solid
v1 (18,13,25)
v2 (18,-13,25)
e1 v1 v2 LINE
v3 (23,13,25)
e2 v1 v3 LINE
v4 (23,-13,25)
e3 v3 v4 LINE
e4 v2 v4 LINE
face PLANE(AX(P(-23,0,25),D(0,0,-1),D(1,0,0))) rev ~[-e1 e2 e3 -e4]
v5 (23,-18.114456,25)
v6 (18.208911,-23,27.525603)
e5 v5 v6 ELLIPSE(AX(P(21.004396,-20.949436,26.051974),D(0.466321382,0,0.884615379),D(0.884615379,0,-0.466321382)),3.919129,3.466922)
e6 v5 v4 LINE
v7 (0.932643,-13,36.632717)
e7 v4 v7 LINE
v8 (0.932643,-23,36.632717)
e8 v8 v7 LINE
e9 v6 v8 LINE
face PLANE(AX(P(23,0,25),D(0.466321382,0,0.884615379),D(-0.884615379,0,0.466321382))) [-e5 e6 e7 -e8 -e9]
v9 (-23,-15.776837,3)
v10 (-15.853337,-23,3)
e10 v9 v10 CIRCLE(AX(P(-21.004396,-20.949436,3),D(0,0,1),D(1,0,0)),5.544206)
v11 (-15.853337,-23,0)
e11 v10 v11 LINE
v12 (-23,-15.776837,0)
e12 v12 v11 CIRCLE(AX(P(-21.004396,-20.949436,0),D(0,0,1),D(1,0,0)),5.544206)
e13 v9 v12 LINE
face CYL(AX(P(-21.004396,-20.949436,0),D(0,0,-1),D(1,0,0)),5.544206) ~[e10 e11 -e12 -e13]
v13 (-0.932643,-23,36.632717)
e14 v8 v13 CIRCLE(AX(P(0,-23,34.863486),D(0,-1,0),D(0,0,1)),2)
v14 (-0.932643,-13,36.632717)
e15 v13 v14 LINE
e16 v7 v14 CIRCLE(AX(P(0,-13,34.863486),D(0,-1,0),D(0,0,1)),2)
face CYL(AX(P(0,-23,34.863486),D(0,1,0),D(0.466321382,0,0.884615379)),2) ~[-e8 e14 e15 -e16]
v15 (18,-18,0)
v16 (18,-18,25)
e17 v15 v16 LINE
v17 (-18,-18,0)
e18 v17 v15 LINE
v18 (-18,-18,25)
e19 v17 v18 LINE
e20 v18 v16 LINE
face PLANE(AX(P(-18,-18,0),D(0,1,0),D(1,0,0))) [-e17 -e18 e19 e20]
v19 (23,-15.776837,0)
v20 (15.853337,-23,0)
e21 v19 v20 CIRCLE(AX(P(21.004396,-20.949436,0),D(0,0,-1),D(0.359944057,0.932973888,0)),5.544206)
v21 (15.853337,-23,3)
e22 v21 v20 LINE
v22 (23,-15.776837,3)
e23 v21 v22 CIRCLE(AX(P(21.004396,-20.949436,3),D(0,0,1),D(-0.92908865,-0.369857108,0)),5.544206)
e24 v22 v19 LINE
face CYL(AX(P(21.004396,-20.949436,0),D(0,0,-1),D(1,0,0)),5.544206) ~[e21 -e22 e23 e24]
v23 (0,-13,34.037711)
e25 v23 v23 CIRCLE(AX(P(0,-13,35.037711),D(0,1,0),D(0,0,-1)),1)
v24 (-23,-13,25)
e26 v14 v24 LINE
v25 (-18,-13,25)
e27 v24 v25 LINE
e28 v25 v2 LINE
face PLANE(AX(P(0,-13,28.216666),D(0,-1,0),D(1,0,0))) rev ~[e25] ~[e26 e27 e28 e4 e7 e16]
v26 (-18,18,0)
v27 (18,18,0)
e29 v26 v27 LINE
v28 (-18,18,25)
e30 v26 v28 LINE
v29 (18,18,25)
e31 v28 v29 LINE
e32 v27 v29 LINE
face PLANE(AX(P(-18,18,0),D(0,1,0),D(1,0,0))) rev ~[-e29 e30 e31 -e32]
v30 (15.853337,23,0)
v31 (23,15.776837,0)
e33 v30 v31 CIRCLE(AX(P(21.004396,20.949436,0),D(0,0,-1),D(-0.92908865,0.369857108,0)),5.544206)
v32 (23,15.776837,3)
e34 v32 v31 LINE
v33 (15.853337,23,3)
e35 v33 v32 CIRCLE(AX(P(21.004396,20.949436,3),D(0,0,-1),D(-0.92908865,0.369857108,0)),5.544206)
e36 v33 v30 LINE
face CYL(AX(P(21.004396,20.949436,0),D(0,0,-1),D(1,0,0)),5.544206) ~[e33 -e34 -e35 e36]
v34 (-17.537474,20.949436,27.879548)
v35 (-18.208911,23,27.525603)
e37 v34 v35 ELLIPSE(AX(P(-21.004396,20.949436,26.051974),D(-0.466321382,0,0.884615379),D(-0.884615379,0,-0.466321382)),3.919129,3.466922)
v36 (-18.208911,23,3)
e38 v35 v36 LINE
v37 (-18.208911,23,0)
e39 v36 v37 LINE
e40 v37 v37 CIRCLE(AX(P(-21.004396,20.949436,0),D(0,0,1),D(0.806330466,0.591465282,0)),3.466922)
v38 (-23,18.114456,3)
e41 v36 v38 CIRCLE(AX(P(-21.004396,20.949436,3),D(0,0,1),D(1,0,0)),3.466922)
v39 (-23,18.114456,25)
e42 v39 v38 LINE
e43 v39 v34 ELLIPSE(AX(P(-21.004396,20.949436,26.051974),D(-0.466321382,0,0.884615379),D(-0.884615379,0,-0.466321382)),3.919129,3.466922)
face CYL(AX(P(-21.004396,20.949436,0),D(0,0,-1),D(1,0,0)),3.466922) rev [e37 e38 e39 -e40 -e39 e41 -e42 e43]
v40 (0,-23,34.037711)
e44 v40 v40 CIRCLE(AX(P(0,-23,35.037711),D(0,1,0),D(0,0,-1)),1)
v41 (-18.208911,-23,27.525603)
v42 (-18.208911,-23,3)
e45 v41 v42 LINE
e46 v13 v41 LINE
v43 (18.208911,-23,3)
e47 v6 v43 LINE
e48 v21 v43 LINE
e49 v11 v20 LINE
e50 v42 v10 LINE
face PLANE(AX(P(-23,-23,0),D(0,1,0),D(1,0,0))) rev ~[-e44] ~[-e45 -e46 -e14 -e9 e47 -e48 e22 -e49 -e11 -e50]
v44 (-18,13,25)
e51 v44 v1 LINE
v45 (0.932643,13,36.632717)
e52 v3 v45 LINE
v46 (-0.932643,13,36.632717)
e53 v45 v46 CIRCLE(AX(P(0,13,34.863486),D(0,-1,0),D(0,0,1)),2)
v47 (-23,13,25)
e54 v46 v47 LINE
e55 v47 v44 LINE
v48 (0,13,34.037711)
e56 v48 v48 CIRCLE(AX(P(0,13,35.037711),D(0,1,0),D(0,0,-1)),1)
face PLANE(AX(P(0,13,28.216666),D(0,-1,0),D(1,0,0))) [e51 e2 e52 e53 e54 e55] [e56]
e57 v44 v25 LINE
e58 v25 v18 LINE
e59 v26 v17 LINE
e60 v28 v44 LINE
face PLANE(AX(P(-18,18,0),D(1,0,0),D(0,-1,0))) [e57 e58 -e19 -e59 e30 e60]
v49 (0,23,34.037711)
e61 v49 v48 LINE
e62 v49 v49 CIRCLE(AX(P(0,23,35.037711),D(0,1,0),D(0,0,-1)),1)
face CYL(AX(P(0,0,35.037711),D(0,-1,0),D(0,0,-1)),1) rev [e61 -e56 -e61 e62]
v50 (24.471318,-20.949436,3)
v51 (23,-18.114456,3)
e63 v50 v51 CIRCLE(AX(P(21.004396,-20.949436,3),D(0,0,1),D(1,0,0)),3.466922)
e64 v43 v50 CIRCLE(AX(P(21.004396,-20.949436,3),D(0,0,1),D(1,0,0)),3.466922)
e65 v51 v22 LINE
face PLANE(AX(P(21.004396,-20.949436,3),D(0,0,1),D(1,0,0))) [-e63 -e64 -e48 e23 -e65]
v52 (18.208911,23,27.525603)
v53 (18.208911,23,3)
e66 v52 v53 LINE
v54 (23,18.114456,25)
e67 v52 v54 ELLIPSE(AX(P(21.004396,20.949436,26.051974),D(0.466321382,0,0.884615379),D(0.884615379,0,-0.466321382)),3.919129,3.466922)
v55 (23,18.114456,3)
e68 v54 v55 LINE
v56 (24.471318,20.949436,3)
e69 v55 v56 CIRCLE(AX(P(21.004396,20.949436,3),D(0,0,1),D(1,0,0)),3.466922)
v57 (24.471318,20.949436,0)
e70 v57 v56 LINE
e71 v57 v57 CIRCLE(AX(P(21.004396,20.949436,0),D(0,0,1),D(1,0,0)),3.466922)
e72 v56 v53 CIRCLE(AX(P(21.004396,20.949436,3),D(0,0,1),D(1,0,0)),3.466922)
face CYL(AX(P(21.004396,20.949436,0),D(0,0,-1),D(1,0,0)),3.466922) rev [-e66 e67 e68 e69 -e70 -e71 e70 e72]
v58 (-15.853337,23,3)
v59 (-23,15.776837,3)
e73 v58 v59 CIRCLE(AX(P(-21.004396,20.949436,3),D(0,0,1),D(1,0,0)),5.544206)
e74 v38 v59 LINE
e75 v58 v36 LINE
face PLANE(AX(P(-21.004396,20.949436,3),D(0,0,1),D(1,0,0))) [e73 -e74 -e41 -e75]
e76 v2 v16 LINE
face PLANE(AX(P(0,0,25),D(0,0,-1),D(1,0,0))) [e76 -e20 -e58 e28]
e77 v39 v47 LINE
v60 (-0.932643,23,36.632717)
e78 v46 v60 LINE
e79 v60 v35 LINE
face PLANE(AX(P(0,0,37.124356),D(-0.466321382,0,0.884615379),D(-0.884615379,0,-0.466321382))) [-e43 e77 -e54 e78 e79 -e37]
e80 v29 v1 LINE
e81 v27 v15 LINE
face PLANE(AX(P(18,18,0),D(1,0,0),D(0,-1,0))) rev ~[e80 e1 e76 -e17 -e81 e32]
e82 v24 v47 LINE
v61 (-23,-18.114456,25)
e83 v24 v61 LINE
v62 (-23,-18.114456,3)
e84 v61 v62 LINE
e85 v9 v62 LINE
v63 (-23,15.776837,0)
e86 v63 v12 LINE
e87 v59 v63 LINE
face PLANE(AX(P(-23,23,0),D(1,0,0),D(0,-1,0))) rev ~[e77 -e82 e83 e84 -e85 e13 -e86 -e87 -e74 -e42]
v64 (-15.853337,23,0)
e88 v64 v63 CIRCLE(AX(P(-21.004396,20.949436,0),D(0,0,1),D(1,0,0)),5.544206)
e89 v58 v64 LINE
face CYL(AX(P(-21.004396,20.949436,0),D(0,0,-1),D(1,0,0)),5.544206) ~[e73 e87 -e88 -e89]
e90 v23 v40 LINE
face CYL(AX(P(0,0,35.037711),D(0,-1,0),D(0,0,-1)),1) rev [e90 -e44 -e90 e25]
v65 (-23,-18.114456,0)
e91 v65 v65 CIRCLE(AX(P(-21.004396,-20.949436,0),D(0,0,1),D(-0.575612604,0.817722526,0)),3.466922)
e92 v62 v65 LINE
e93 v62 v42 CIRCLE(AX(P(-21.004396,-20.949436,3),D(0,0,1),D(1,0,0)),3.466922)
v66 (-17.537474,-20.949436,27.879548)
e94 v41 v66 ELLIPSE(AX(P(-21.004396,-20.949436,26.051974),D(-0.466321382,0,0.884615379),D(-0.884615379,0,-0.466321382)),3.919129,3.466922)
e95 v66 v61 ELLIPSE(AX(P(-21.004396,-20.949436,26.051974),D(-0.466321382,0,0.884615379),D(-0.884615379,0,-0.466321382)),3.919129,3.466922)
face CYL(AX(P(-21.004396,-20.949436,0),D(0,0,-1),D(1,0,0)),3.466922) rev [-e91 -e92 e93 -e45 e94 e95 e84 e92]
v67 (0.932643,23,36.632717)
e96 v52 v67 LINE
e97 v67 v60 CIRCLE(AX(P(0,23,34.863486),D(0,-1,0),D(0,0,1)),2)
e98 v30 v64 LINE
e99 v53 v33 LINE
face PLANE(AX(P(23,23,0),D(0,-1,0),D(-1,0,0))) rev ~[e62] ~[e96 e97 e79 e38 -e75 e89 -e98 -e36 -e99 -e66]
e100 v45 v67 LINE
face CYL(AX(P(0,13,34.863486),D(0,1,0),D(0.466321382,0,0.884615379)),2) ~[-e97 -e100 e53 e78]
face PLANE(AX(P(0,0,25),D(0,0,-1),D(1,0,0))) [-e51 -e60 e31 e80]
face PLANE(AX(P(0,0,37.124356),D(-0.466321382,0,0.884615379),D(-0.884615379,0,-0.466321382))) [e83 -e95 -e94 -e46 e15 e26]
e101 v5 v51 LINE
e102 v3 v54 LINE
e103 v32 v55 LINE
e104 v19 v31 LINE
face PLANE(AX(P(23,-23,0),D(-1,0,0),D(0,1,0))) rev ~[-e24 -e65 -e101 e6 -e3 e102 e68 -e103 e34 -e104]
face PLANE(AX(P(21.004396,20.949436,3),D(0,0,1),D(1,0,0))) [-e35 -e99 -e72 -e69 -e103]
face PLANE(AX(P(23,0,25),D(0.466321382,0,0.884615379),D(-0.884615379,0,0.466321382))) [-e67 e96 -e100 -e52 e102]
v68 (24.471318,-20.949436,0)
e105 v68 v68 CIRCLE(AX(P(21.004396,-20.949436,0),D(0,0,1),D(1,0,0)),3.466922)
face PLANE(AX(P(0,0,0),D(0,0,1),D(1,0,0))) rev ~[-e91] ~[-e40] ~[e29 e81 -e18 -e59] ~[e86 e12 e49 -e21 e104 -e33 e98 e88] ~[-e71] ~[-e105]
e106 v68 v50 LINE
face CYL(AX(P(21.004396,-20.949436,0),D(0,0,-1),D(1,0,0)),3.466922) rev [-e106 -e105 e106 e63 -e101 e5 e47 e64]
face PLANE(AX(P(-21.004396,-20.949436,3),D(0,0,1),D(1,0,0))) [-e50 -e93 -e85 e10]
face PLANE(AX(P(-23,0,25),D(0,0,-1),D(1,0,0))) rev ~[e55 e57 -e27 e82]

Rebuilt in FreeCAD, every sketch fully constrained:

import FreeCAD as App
import Part
import Sketcher
from FreeCAD import Vector


def edges_at(feature, points):
    """Names of the edges that pass closest to the given points."""
    edges = feature.Shape.Edges
    near = lambda p: min(range(len(edges)), key=lambda i: edges[i].distToShape(Part.Vertex(*p))[0])
    return sorted({f"Edge{near(p) + 1}" for p in points})


def add_polygon(sketch, points):
    """Adds a closed chain of lines whose ends are joined by coincident constraints."""
    first, n = sketch.GeometryCount, len(points)
    for a, b in zip(points, points[1:] + points[:1]):
        sketch.addGeometry(Part.LineSegment(App.Vector(*a, 0), App.Vector(*b, 0)), False)
    for i in range(n):
        sketch.addConstraint(Sketcher.Constraint("Coincident", first + i, 2, first + (i + 1) % n, 1))

doc = App.newDocument("Part")
body = doc.addObject("PartDesign::Body", "Body")

# Sketch on XY plane
sketch1 = doc.addObject("Sketcher::SketchObject", "Sketch")
body.addObject(sketch1)
sketch1.AttachmentSupport = (doc.XY_Plane, [""])
sketch1.MapMode = "FlatFace"
add_polygon(sketch1, [(23, 23), (-23, 23), (-23, -23), (23, -23)])  # lines 0-3
sketch1.addGeometry(Part.Circle(Vector(-20.221745, -20.221745, 0), Vector(0, 0, 1), 1.65), False)  # 4
sketch1.addGeometry(Part.Circle(Vector(20.221745, -20.221745, 0), Vector(0, 0, 1), 1.65), False)  # 5
sketch1.addGeometry(Part.Circle(Vector(-20.221745, 20.221745, 0), Vector(0, 0, 1), 1.65), False)  # 6
sketch1.addGeometry(Part.Circle(Vector(20.221745, 20.221745, 0), Vector(0, 0, 1), 1.65), False)  # 7
sketch1.addConstraint(Sketcher.Constraint("Horizontal", 0))
sketch1.addConstraint(Sketcher.Constraint("Vertical", 1))
sketch1.addConstraint(Sketcher.Constraint("Horizontal", 2))
sketch1.addConstraint(Sketcher.Constraint("Vertical", 3))
sketch1.addConstraint(Sketcher.Constraint("Equal", 4, 5))
sketch1.addConstraint(Sketcher.Constraint("Equal", 5, 6))
sketch1.addConstraint(Sketcher.Constraint("Equal", 6, 7))
sketch1.addConstraint(Sketcher.Constraint("Symmetric", 5, 3, 6, 3, -1, 1))
sketch1.addConstraint(Sketcher.Constraint("Symmetric", 4, 3, 7, 3, -1, 1))
sketch1.addConstraint(Sketcher.Constraint("Symmetric", 0, 2, 2, 2, -1, 1))
sketch1.addConstraint(Sketcher.Constraint("Symmetric", 4, 3, 5, 3, -2))
sketch1.addConstraint(Sketcher.Constraint("Equal", 2, 1))
sketch1.addConstraint(Sketcher.Constraint("Diameter", 4, 3.3))
sketch1.addConstraint(Sketcher.Constraint("DistanceX", 0, 2, 0, 1, 46.0))
sketch1.addConstraint(Sketcher.Constraint("DistanceX", 4, 3, 5, 3, 40.44349))
sketch1.addConstraint(Sketcher.Constraint("DistanceY", 4, 3, 6, 3, 40.44349))
pad1 = doc.addObject("PartDesign::Pad", "Pad")
body.addObject(pad1)
pad1.Profile = sketch1
pad1.Length = 25

# Sketch on XZ plane
sketch2 = doc.addObject("Sketcher::SketchObject", "Sketch001")
body.addObject(sketch2)
sketch2.AttachmentSupport = (doc.XZ_Plane, [""])
sketch2.MapMode = "FlatFace"
add_polygon(sketch2, [(-23, 25), (23, 25), (0, 37.124356)])  # lines 0-2
sketch2.addGeometry(Part.Circle(Vector(0, 35.037711, 0), Vector(0, 0, 1), 1), False)  # 3
sketch2.addConstraint(Sketcher.Constraint("Horizontal", 0))
sketch2.addConstraint(Sketcher.Constraint("PointOnObject", 3, 3, -2))
sketch2.addConstraint(Sketcher.Constraint("PointOnObject", 1, 2, -2))
sketch2.addConstraint(Sketcher.Constraint("Equal", 1, 2))
sketch2.addConstraint(Sketcher.Constraint("Diameter", 3, 2.0))
sketch2.addConstraint(Sketcher.Constraint("DistanceX", 0, 1, 0, 2, 46.0))
sketch2.addConstraint(Sketcher.Constraint("Distance", 1, 26.0))
sketch2.addConstraint(Sketcher.Constraint("DistanceY", -1, 1, 0, 2, 25.0))
sketch2.addConstraint(Sketcher.Constraint("DistanceY", -1, 1, 3, 3, 35.037711))
pad2 = doc.addObject("PartDesign::Pad", "Pad001")
body.addObject(pad2)
pad2.Profile = sketch2
pad2.Length = 46
pad2.Midplane = True

# Sketch on XZ plane
sketch3 = doc.addObject("Sketcher::SketchObject", "Sketch002")
body.addObject(sketch3)
sketch3.AttachmentSupport = (doc.XZ_Plane, [""])
sketch3.MapMode = "FlatFace"
add_polygon(sketch3, [(-23, 25), (23, 25), (0, 37.124356)])  # lines 0-2
sketch3.addGeometry(Part.Circle(Vector(0, 35.037711, 0), Vector(0, 0, 1), 1), False)  # 3
sketch3.addConstraint(Sketcher.Constraint("Horizontal", 0))
sketch3.addConstraint(Sketcher.Constraint("PointOnObject", 3, 3, -2))
sketch3.addConstraint(Sketcher.Constraint("PointOnObject", 1, 2, -2))
sketch3.addConstraint(Sketcher.Constraint("Equal", 1, 2))
sketch3.addConstraint(Sketcher.Constraint("Diameter", 3, 2.0))
sketch3.addConstraint(Sketcher.Constraint("DistanceX", 0, 1, 0, 2, 46.0))
sketch3.addConstraint(Sketcher.Constraint("Distance", 1, 26.0))
sketch3.addConstraint(Sketcher.Constraint("DistanceY", -1, 1, 0, 2, 25.0))
sketch3.addConstraint(Sketcher.Constraint("DistanceY", -1, 1, 3, 3, 35.037711))
pocket1 = doc.addObject("PartDesign::Pocket", "Pocket")
body.addObject(pocket1)
pocket1.Profile = sketch3
pocket1.Length = 26
pocket1.Midplane = True

# Sketch on XY plane
sketch4 = doc.addObject("Sketcher::SketchObject", "Sketch003")
body.addObject(sketch4)
sketch4.AttachmentSupport = (doc.XY_Plane, [""])
sketch4.MapMode = "FlatFace"
sketch4.addGeometry(Part.Circle(Vector(-21.004396, 20.949436, 0), Vector(0, 0, 1), 3.466922), False)
sketch4.addGeometry(Part.Circle(Vector(21.004396, 20.949436, 0), Vector(0, 0, 1), 3.466922), False)
sketch4.addGeometry(Part.Circle(Vector(21.004396, -20.949436, 0), Vector(0, 0, 1), 3.466922), False)
sketch4.addGeometry(Part.Circle(Vector(-21.004396, -20.949436, 0), Vector(0, 0, 1), 3.466922), False)
sketch4.addConstraint(Sketcher.Constraint("Equal", 0, 1))
sketch4.addConstraint(Sketcher.Constraint("Equal", 1, 2))
sketch4.addConstraint(Sketcher.Constraint("Equal", 2, 3))
sketch4.addConstraint(Sketcher.Constraint("Symmetric", 0, 3, 2, 3, -1, 1))
sketch4.addConstraint(Sketcher.Constraint("Symmetric", 1, 3, 3, 3, -1, 1))
sketch4.addConstraint(Sketcher.Constraint("Symmetric", 0, 3, 1, 3, -2))
sketch4.addConstraint(Sketcher.Constraint("Diameter", 0, 6.933844))
sketch4.addConstraint(Sketcher.Constraint("DistanceY", 2, 3, 1, 3, 41.898872))
sketch4.addConstraint(Sketcher.Constraint("DistanceX", 0, 3, -1, 1, 21.004396))
pocket2 = doc.addObject("PartDesign::Pocket", "Pocket001")
body.addObject(pocket2)
pocket2.Profile = sketch4
pocket2.Length = 36
pocket2.Reversed = True

# Sketch on XY plane
sketch5 = doc.addObject("Sketcher::SketchObject", "Sketch004")
body.addObject(sketch5)
sketch5.AttachmentSupport = (doc.XY_Plane, [""])
sketch5.MapMode = "FlatFace"
sketch5.addGeometry(Part.Circle(Vector(-21.004396, 20.949436, 0), Vector(0, 0, 1), 5.544206), False)
sketch5.addGeometry(Part.Circle(Vector(-21.004396, 20.949436, 0), Vector(0, 0, 1), 3.466922), False)
sketch5.addGeometry(Part.Circle(Vector(21.004396, 20.949436, 0), Vector(0, 0, 1), 5.544206), False)
sketch5.addGeometry(Part.Circle(Vector(21.004396, 20.949436, 0), Vector(0, 0, 1), 3.466922), False)
sketch5.addGeometry(Part.Circle(Vector(21.004396, -20.949436, 0), Vector(0, 0, 1), 5.544206), False)
sketch5.addGeometry(Part.Circle(Vector(21.004396, -20.949436, 0), Vector(0, 0, 1), 3.466922), False)
sketch5.addGeometry(Part.Circle(Vector(-21.004396, -20.949436, 0), Vector(0, 0, 1), 5.544206), False)
sketch5.addGeometry(Part.Circle(Vector(-21.004396, -20.949436, 0), Vector(0, 0, 1), 3.466922), False)
sketch5.addConstraint(Sketcher.Constraint("Coincident", 1, 3, 0, 3))
sketch5.addConstraint(Sketcher.Constraint("Coincident", 3, 3, 2, 3))
sketch5.addConstraint(Sketcher.Constraint("Coincident", 5, 3, 4, 3))
sketch5.addConstraint(Sketcher.Constraint("Coincident", 7, 3, 6, 3))
sketch5.addConstraint(Sketcher.Constraint("Equal", 0, 2))
sketch5.addConstraint(Sketcher.Constraint("Equal", 1, 3))
sketch5.addConstraint(Sketcher.Constraint("Equal", 2, 4))
sketch5.addConstraint(Sketcher.Constraint("Equal", 3, 5))
sketch5.addConstraint(Sketcher.Constraint("Equal", 4, 6))
sketch5.addConstraint(Sketcher.Constraint("Equal", 5, 7))
sketch5.addConstraint(Sketcher.Constraint("Symmetric", 0, 3, 4, 3, -1, 1))
sketch5.addConstraint(Sketcher.Constraint("Symmetric", 2, 3, 6, 3, -1, 1))
sketch5.addConstraint(Sketcher.Constraint("Symmetric", 0, 3, 2, 3, -2))
sketch5.addConstraint(Sketcher.Constraint("Diameter", 0, 11.088412))
sketch5.addConstraint(Sketcher.Constraint("Diameter", 1, 6.933844))
sketch5.addConstraint(Sketcher.Constraint("DistanceY", 4, 3, 2, 3, 41.898872))
sketch5.addConstraint(Sketcher.Constraint("DistanceX", 0, 3, -1, 1, 21.004396))
pad3 = doc.addObject("PartDesign::Pad", "Pad002")
body.addObject(pad3)
pad3.Profile = sketch5
pad3.Length = 3

# Sketch on XY plane
sketch6 = doc.addObject("Sketcher::SketchObject", "Sketch005")
body.addObject(sketch6)
sketch6.AttachmentSupport = (doc.XY_Plane, [""])
sketch6.MapMode = "FlatFace"
add_polygon(sketch6, [(-18, -18), (-18, 18), (18, 18), (18, -18)])  # lines 0-3
sketch6.addConstraint(Sketcher.Constraint("Vertical", 0))
sketch6.addConstraint(Sketcher.Constraint("Horizontal", 1))
sketch6.addConstraint(Sketcher.Constraint("Vertical", 2))
sketch6.addConstraint(Sketcher.Constraint("Horizontal", 3))
sketch6.addConstraint(Sketcher.Constraint("Symmetric", 0, 2, 2, 2, -1, 1))
sketch6.addConstraint(Sketcher.Constraint("Equal", 3, 0))
sketch6.addConstraint(Sketcher.Constraint("DistanceX", 1, 1, 1, 2, 36.0))
pocket3 = doc.addObject("PartDesign::Pocket", "Pocket002")
body.addObject(pocket3)
pocket3.Profile = sketch6
pocket3.Length = 25
pocket3.Reversed = True
doc.recompute()

fillet = doc.addObject("PartDesign::Fillet", "Fillet")
body.addObject(fillet)
fillet.Base = (pocket3, edges_at(pocket3, [(0, 18, 37.124), (0, -18, 37.124)]))
fillet.Radius = 2

doc.recompute()
